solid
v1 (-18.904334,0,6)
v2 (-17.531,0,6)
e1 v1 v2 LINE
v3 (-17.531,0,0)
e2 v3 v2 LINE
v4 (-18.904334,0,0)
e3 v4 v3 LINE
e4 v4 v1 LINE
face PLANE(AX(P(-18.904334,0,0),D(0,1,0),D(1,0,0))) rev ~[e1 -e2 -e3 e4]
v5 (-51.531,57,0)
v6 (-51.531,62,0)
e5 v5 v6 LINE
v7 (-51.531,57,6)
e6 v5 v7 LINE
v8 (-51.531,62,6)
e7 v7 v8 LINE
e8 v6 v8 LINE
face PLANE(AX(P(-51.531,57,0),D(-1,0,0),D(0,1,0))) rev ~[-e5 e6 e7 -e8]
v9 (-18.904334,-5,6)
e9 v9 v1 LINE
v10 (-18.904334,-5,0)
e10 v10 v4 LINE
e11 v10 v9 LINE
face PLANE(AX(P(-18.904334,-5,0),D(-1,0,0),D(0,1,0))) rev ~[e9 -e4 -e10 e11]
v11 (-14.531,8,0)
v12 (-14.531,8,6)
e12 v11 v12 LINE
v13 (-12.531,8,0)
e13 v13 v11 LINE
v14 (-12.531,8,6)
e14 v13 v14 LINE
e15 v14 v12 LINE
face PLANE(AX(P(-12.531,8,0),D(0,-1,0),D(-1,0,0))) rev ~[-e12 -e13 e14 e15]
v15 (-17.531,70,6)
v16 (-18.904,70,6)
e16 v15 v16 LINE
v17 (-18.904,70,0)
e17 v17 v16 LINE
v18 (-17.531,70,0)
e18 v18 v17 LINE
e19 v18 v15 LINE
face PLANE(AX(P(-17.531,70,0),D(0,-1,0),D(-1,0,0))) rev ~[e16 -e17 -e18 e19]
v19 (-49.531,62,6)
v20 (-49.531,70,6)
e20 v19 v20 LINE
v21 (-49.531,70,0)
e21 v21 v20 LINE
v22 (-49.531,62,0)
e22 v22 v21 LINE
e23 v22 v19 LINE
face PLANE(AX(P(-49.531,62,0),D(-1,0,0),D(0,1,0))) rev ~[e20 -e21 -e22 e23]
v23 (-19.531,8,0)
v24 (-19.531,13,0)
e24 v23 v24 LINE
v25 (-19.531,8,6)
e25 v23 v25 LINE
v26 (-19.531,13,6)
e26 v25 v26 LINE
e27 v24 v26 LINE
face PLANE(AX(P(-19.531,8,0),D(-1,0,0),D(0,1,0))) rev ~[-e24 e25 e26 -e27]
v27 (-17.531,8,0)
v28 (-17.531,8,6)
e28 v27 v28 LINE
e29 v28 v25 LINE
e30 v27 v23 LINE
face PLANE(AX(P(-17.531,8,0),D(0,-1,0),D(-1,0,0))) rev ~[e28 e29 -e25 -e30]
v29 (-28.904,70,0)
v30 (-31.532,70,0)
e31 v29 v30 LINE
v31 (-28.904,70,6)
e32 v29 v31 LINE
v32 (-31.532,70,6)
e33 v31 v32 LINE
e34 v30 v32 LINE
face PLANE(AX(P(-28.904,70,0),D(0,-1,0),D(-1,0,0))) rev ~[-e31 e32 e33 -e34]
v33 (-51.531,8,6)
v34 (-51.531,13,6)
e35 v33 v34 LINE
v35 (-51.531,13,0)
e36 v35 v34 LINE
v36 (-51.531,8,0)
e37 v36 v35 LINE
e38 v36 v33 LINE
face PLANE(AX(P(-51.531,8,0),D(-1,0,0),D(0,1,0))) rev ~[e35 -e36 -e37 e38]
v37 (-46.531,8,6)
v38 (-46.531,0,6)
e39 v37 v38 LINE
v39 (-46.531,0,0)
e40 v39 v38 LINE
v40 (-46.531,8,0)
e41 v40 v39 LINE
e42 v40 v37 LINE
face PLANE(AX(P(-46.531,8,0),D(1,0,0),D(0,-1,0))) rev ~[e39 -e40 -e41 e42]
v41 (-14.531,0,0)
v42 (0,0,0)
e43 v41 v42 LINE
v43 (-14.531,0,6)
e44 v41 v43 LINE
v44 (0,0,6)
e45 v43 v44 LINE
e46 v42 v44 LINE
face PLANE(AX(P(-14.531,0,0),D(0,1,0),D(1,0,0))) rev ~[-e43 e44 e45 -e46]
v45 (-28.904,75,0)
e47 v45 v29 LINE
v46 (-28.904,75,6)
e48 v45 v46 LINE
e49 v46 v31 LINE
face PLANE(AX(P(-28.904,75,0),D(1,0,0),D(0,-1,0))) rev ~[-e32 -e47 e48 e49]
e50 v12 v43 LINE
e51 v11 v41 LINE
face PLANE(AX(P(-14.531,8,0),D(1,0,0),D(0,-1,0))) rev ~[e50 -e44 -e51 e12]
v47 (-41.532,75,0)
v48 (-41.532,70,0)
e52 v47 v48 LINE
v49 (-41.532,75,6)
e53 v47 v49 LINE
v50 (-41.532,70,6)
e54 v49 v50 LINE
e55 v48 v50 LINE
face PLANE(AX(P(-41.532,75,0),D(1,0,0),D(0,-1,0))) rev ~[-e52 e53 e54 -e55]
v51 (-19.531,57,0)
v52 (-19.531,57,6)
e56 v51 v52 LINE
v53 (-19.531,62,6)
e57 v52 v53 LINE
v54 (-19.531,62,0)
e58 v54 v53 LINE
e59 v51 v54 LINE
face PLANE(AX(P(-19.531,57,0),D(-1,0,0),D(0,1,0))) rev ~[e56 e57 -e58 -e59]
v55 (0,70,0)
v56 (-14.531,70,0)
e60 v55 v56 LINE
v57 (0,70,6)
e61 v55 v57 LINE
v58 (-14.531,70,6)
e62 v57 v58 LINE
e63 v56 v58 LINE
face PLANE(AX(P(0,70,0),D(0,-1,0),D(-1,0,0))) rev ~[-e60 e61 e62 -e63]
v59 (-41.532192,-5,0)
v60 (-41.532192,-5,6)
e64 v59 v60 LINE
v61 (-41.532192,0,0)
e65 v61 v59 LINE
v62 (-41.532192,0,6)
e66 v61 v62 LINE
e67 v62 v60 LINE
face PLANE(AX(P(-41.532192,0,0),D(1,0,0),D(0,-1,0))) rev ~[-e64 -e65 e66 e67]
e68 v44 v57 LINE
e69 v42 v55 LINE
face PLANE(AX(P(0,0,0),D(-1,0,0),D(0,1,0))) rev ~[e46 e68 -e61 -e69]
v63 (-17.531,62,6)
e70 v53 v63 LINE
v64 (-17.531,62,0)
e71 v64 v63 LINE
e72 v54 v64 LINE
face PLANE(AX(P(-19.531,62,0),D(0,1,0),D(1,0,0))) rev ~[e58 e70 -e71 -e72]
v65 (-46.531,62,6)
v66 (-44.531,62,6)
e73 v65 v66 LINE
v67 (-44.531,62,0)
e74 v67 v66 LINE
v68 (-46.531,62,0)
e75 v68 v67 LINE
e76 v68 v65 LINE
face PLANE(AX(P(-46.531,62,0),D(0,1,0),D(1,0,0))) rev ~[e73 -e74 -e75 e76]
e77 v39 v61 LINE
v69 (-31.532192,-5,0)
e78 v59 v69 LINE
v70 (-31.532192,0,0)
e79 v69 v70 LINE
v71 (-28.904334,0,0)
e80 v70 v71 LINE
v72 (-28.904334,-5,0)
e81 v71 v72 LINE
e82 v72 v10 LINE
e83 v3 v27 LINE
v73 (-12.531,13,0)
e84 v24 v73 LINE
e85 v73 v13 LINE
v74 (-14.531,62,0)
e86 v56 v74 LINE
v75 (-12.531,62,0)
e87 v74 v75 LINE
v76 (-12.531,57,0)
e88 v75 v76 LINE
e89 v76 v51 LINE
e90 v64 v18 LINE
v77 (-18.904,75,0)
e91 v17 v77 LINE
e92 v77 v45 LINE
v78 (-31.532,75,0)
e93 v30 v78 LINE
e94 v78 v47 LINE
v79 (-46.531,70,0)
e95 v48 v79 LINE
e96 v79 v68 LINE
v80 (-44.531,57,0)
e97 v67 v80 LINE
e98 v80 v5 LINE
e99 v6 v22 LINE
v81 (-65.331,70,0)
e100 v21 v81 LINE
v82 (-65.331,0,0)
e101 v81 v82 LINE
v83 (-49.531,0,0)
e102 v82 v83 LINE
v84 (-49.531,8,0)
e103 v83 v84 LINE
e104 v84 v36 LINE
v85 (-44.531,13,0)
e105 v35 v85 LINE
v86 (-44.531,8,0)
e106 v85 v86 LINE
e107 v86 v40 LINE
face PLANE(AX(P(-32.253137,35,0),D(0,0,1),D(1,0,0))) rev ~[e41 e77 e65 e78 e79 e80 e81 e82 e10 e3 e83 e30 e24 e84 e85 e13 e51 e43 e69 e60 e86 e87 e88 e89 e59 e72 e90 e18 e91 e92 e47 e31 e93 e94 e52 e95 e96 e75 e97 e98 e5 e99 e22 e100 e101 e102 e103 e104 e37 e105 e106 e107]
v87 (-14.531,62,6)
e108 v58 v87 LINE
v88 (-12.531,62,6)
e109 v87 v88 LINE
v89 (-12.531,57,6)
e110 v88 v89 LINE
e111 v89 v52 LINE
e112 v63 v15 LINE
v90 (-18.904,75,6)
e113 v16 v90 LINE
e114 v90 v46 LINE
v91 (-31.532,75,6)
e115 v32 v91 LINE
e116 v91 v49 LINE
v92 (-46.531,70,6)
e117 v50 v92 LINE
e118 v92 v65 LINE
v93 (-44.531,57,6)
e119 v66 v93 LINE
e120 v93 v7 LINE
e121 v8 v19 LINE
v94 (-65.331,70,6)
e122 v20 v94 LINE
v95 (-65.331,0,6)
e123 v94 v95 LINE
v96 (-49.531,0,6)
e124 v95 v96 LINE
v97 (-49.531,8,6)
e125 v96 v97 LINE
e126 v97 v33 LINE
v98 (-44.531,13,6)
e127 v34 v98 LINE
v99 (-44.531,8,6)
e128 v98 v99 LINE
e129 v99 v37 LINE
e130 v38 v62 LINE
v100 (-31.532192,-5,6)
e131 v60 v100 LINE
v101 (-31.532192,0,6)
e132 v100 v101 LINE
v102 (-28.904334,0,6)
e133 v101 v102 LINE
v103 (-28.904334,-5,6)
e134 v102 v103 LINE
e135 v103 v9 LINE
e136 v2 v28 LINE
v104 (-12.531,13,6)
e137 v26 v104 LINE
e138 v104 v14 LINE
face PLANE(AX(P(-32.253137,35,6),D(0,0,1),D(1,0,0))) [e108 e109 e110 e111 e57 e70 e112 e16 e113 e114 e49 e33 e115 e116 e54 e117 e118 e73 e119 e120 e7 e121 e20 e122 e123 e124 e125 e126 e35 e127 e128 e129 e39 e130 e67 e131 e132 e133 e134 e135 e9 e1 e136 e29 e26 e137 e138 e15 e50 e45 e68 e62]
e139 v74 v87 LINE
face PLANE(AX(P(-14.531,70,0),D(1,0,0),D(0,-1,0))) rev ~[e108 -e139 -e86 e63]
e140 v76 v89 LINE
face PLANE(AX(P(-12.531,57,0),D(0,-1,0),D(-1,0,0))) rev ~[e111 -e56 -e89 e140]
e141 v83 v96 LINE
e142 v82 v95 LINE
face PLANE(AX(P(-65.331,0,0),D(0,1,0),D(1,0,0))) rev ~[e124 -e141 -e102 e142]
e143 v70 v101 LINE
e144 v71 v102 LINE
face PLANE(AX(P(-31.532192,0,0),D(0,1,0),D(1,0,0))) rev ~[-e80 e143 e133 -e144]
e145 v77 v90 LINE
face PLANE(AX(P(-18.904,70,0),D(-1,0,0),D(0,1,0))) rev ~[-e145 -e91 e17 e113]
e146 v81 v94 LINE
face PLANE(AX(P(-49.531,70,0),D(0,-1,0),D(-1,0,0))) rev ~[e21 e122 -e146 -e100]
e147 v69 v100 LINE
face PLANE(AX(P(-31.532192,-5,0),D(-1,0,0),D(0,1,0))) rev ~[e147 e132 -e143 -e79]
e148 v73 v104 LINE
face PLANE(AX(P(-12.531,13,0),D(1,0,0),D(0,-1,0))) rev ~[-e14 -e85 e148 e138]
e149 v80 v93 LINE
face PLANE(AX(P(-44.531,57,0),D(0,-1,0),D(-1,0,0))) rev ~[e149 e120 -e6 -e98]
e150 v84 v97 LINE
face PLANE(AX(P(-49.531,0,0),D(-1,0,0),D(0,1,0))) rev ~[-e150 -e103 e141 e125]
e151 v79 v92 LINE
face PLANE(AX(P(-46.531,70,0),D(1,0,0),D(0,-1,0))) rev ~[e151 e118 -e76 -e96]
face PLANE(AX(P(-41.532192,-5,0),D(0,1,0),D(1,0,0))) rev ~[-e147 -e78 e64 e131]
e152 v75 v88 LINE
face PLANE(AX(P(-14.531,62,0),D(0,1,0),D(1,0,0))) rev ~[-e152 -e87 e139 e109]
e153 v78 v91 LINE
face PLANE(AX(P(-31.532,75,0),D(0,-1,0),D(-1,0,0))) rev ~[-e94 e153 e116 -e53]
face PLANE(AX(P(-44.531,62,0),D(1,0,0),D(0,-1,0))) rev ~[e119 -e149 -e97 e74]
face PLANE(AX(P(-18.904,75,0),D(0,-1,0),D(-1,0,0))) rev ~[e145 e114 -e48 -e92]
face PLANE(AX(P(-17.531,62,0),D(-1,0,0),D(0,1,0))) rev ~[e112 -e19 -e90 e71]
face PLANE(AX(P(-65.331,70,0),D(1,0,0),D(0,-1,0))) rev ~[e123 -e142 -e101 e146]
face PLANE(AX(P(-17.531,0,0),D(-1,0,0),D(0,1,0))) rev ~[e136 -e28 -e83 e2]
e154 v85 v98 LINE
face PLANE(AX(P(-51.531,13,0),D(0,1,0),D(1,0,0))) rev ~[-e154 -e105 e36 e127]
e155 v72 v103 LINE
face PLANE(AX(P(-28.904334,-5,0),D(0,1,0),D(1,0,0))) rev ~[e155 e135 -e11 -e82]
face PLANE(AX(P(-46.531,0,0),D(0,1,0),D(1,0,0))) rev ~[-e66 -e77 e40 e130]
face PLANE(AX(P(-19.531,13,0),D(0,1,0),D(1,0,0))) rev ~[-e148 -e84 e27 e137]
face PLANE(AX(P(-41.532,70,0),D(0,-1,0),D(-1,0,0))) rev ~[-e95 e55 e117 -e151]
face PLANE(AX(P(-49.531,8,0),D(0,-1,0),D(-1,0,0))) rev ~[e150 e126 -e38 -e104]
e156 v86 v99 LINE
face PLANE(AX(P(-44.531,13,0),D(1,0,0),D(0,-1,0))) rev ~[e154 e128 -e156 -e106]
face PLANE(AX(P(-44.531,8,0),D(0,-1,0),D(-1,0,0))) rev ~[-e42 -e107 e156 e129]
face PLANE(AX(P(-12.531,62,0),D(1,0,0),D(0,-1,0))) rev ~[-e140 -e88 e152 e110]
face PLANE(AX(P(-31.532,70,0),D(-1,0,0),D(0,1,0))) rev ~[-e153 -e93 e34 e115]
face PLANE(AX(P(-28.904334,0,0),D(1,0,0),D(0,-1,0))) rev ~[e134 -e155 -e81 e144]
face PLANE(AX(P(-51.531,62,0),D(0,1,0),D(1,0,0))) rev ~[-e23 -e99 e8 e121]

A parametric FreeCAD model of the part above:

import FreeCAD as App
import Part
import Sketcher
Q = App.Units.Quantity


def add_polygon(sketch, points):
    """Adds a closed chain of lines whose ends are joined by coincident constraints."""
    first, n = sketch.GeometryCount, len(points)
    for a, b in zip(points, points[1:] + points[:1]):
        sketch.addGeometry(Part.LineSegment(App.Vector(*a, 0), App.Vector(*b, 0)), False)
    for i in range(n):
        sketch.addConstraint(Sketcher.Constraint("Coincident", first + i, 2, first + (i + 1) % n, 1))

doc = App.newDocument("Part")
body = doc.addObject("PartDesign::Body", "Body")

sketch1 = body.newObject("Sketcher::SketchObject", "Sketch")
sketch1.AttachmentSupport = (doc.getObject("XY_Plane"), [""])
sketch1.MapMode = "FlatFace"
add_polygon(sketch1, [(-49.5, 62), (-49.5, 70), (-65.3, 70), (-65.3, 0), (-49.5, 0), (-49.5, 8), (-51.5, 8), (-51.5, 13), (-44.5, 13), (-44.5, 8), (-46.5, 8), (-46.5, 0), (-41.5, 0), (-41.5, -5), (-31.5, -5), (-31.5, 0), (-28.9, 0), (-28.9, -5), (-18.9, -5), (-18.9, 0), (-17.5, 0), (-17.5, 8), (-19.5, 8), (-19.5, 13), (-12.5, 13), (-12.5, 8), (-14.5, 8), (-14.5, 0), (0, 0), (0, 70), (-14.5, 70), (-14.5, 62), (-12.5, 62), (-12.5, 57), (-19.5, 57), (-19.5, 62), (-17.5, 62), (-17.5, 70), (-18.9, 70), (-18.9, 75), (-28.9, 75), (-28.9, 70), (-31.5, 70), (-31.5, 75), (-41.5, 75), (-41.5, 70), (-46.5, 70), (-46.5, 62), (-44.5, 62), (-44.5, 57), (-51.5, 57), (-51.5, 62)])
sketch1.addConstraint([
    Sketcher.Constraint("Vertical", 0),
    Sketcher.Constraint("Horizontal", 1),
    Sketcher.Constraint("Vertical", 2),
    Sketcher.Constraint("Horizontal", 3),
    Sketcher.Constraint("Vertical", 4),
    Sketcher.Constraint("Horizontal", 5),
    Sketcher.Constraint("Vertical", 6),
    Sketcher.Constraint("Horizontal", 7),
    Sketcher.Constraint("Vertical", 8),
    Sketcher.Constraint("Horizontal", 9),
    Sketcher.Constraint("Vertical", 10),
    Sketcher.Constraint("Horizontal", 11),
    Sketcher.Constraint("Vertical", 12),
    Sketcher.Constraint("Horizontal", 13),
    Sketcher.Constraint("Vertical", 14),
    Sketcher.Constraint("Horizontal", 15),
    Sketcher.Constraint("Vertical", 16),
    Sketcher.Constraint("Horizontal", 17),
    Sketcher.Constraint("Vertical", 18),
    Sketcher.Constraint("Horizontal", 19),
    Sketcher.Constraint("Vertical", 20),
    Sketcher.Constraint("Horizontal", 21),
    Sketcher.Constraint("Vertical", 22),
    Sketcher.Constraint("Horizontal", 23),
    Sketcher.Constraint("Vertical", 24),
    Sketcher.Constraint("Horizontal", 25),
    Sketcher.Constraint("Vertical", 26),
    Sketcher.Constraint("Horizontal", 27),
    Sketcher.Constraint("Vertical", 28),
    Sketcher.Constraint("Horizontal", 29),
    Sketcher.Constraint("Vertical", 30),
    Sketcher.Constraint("Horizontal", 31),
    Sketcher.Constraint("Vertical", 32),
    Sketcher.Constraint("Horizontal", 33),
    Sketcher.Constraint("Vertical", 34),
    Sketcher.Constraint("Horizontal", 35),
    Sketcher.Constraint("Vertical", 36),
    Sketcher.Constraint("Horizontal", 37),
    Sketcher.Constraint("Vertical", 38),
    Sketcher.Constraint("Horizontal", 39),
    Sketcher.Constraint("Vertical", 40),
    Sketcher.Constraint("Horizontal", 41),
    Sketcher.Constraint("Vertical", 42),
    Sketcher.Constraint("Horizontal", 43),
    Sketcher.Constraint("Vertical", 44),
    Sketcher.Constraint("Horizontal", 45),
    Sketcher.Constraint("Vertical", 46),
    Sketcher.Constraint("Horizontal", 47),
    Sketcher.Constraint("Vertical", 48),
    Sketcher.Constraint("Horizontal", 49),
    Sketcher.Constraint("Vertical", 50),
    Sketcher.Constraint("Horizontal", 51),
    Sketcher.Constraint("Coincident", 27, 2, -1, 1),
    Sketcher.Constraint("PointOnObject", 2, 2, -1),
    Sketcher.Constraint("PointOnObject", 10, 2, -1),
    Sketcher.Constraint("PointOnObject", 14, 2, -1),
    Sketcher.Constraint("PointOnObject", 18, 2, -1),
    Sketcher.Constraint("Horizontal", 5, 2, 8, 2),
    Sketcher.Constraint("Horizontal", 13, 2, 16, 2),
    Sketcher.Constraint("Horizontal", 9, 2, 20, 2),
    Sketcher.Constraint("Horizontal", 7, 2, 22, 2),
    Sketcher.Constraint("Horizontal", 21, 2, 24, 2),
    Sketcher.Constraint("Horizontal", 1, 2, 28, 2),
    Sketcher.Constraint("Horizontal", 31, 2, 34, 2),
    Sketcher.Constraint("Horizontal", 29, 2, 36, 2),
    Sketcher.Constraint("Horizontal", 37, 2, 40, 2),
    Sketcher.Constraint("Horizontal", 39, 2, 42, 2),
    Sketcher.Constraint("Horizontal", 41, 2, 44, 2),
    Sketcher.Constraint("Horizontal", 35, 2, 46, 2),
    Sketcher.Constraint("Horizontal", 33, 2, 48, 2),
    Sketcher.Constraint("Horizontal", 47, 2, 50, 2),
    Sketcher.Constraint("Vertical", 0, 2, 3, 2),
    Sketcher.Constraint("Vertical", 26, 2, 29, 2),
    Sketcher.Constraint("Vertical", 24, 2, 31, 2),
    Sketcher.Constraint("Vertical", 22, 2, 33, 2),
    Sketcher.Constraint("Vertical", 20, 2, 35, 2),
    Sketcher.Constraint("Vertical", 10, 2, 45, 2),
    Sketcher.Constraint("Vertical", 8, 2, 47, 2),
    Sketcher.Constraint("Vertical", 6, 2, 49, 2),
    Sketcher.Constraint("Equal", 5, 9),
    Sketcher.Constraint("Equal", 13, 17),
    Sketcher.Constraint("Equal", 9, 21),
    Sketcher.Constraint("Equal", 7, 23),
    Sketcher.Constraint("Equal", 21, 25),
    Sketcher.Constraint("Equal", 17, 39),
    Sketcher.Constraint("Equal", 39, 43),
    Sketcher.Constraint("Equal", 0, 4),
    Sketcher.Constraint("Equal", 8, 12),
    Sketcher.Constraint("Equal", 24, 32),
    Sketcher.Constraint("Equal", 34, 38),
    Sketcher.Constraint("DistanceX", 5, 2, 5, 1, Q("2 mm")),
    Sketcher.Constraint("DistanceX", 7, 1, 7, 2, Q("7 mm")),
    Sketcher.Constraint("DistanceX", 13, 1, 13, 2, Q("10 mm")),
    Sketcher.Constraint("DistanceY", 0, 1, 0, 2, Q("8 mm")),
    Sketcher.Constraint("DistanceY", 2, 2, 2, 1, Q("70 mm")),
    Sketcher.Constraint("DistanceY", 6, 1, 6, 2, Q("5 mm")),
    Sketcher.Constraint("DistanceX", 1, 2, 1, 1, Q("15.8 mm")),
    Sketcher.Constraint("DistanceX", 0, 2, 29, 2, Q("35 mm")),
    Sketcher.Constraint("DistanceX", 27, 1, 27, 2, Q("14.531 mm")),
    Sketcher.Constraint("DistanceX", 37, 2, 37, 1, Q("1.373 mm")),
    Sketcher.Constraint("DistanceX", 41, 2, 41, 1, Q("2.628 mm")),
    Sketcher.Constraint("DistanceX", 15, 1, 15, 2, Q("2.627859 mm")),
    Sketcher.Constraint("DistanceX", 11, 1, 11, 2, Q("4.998808 mm")),
])
pad1 = body.newObject("PartDesign::Pad", "Pad")
pad1.Profile = sketch1
pad1.Length = 6

doc.recompute()
